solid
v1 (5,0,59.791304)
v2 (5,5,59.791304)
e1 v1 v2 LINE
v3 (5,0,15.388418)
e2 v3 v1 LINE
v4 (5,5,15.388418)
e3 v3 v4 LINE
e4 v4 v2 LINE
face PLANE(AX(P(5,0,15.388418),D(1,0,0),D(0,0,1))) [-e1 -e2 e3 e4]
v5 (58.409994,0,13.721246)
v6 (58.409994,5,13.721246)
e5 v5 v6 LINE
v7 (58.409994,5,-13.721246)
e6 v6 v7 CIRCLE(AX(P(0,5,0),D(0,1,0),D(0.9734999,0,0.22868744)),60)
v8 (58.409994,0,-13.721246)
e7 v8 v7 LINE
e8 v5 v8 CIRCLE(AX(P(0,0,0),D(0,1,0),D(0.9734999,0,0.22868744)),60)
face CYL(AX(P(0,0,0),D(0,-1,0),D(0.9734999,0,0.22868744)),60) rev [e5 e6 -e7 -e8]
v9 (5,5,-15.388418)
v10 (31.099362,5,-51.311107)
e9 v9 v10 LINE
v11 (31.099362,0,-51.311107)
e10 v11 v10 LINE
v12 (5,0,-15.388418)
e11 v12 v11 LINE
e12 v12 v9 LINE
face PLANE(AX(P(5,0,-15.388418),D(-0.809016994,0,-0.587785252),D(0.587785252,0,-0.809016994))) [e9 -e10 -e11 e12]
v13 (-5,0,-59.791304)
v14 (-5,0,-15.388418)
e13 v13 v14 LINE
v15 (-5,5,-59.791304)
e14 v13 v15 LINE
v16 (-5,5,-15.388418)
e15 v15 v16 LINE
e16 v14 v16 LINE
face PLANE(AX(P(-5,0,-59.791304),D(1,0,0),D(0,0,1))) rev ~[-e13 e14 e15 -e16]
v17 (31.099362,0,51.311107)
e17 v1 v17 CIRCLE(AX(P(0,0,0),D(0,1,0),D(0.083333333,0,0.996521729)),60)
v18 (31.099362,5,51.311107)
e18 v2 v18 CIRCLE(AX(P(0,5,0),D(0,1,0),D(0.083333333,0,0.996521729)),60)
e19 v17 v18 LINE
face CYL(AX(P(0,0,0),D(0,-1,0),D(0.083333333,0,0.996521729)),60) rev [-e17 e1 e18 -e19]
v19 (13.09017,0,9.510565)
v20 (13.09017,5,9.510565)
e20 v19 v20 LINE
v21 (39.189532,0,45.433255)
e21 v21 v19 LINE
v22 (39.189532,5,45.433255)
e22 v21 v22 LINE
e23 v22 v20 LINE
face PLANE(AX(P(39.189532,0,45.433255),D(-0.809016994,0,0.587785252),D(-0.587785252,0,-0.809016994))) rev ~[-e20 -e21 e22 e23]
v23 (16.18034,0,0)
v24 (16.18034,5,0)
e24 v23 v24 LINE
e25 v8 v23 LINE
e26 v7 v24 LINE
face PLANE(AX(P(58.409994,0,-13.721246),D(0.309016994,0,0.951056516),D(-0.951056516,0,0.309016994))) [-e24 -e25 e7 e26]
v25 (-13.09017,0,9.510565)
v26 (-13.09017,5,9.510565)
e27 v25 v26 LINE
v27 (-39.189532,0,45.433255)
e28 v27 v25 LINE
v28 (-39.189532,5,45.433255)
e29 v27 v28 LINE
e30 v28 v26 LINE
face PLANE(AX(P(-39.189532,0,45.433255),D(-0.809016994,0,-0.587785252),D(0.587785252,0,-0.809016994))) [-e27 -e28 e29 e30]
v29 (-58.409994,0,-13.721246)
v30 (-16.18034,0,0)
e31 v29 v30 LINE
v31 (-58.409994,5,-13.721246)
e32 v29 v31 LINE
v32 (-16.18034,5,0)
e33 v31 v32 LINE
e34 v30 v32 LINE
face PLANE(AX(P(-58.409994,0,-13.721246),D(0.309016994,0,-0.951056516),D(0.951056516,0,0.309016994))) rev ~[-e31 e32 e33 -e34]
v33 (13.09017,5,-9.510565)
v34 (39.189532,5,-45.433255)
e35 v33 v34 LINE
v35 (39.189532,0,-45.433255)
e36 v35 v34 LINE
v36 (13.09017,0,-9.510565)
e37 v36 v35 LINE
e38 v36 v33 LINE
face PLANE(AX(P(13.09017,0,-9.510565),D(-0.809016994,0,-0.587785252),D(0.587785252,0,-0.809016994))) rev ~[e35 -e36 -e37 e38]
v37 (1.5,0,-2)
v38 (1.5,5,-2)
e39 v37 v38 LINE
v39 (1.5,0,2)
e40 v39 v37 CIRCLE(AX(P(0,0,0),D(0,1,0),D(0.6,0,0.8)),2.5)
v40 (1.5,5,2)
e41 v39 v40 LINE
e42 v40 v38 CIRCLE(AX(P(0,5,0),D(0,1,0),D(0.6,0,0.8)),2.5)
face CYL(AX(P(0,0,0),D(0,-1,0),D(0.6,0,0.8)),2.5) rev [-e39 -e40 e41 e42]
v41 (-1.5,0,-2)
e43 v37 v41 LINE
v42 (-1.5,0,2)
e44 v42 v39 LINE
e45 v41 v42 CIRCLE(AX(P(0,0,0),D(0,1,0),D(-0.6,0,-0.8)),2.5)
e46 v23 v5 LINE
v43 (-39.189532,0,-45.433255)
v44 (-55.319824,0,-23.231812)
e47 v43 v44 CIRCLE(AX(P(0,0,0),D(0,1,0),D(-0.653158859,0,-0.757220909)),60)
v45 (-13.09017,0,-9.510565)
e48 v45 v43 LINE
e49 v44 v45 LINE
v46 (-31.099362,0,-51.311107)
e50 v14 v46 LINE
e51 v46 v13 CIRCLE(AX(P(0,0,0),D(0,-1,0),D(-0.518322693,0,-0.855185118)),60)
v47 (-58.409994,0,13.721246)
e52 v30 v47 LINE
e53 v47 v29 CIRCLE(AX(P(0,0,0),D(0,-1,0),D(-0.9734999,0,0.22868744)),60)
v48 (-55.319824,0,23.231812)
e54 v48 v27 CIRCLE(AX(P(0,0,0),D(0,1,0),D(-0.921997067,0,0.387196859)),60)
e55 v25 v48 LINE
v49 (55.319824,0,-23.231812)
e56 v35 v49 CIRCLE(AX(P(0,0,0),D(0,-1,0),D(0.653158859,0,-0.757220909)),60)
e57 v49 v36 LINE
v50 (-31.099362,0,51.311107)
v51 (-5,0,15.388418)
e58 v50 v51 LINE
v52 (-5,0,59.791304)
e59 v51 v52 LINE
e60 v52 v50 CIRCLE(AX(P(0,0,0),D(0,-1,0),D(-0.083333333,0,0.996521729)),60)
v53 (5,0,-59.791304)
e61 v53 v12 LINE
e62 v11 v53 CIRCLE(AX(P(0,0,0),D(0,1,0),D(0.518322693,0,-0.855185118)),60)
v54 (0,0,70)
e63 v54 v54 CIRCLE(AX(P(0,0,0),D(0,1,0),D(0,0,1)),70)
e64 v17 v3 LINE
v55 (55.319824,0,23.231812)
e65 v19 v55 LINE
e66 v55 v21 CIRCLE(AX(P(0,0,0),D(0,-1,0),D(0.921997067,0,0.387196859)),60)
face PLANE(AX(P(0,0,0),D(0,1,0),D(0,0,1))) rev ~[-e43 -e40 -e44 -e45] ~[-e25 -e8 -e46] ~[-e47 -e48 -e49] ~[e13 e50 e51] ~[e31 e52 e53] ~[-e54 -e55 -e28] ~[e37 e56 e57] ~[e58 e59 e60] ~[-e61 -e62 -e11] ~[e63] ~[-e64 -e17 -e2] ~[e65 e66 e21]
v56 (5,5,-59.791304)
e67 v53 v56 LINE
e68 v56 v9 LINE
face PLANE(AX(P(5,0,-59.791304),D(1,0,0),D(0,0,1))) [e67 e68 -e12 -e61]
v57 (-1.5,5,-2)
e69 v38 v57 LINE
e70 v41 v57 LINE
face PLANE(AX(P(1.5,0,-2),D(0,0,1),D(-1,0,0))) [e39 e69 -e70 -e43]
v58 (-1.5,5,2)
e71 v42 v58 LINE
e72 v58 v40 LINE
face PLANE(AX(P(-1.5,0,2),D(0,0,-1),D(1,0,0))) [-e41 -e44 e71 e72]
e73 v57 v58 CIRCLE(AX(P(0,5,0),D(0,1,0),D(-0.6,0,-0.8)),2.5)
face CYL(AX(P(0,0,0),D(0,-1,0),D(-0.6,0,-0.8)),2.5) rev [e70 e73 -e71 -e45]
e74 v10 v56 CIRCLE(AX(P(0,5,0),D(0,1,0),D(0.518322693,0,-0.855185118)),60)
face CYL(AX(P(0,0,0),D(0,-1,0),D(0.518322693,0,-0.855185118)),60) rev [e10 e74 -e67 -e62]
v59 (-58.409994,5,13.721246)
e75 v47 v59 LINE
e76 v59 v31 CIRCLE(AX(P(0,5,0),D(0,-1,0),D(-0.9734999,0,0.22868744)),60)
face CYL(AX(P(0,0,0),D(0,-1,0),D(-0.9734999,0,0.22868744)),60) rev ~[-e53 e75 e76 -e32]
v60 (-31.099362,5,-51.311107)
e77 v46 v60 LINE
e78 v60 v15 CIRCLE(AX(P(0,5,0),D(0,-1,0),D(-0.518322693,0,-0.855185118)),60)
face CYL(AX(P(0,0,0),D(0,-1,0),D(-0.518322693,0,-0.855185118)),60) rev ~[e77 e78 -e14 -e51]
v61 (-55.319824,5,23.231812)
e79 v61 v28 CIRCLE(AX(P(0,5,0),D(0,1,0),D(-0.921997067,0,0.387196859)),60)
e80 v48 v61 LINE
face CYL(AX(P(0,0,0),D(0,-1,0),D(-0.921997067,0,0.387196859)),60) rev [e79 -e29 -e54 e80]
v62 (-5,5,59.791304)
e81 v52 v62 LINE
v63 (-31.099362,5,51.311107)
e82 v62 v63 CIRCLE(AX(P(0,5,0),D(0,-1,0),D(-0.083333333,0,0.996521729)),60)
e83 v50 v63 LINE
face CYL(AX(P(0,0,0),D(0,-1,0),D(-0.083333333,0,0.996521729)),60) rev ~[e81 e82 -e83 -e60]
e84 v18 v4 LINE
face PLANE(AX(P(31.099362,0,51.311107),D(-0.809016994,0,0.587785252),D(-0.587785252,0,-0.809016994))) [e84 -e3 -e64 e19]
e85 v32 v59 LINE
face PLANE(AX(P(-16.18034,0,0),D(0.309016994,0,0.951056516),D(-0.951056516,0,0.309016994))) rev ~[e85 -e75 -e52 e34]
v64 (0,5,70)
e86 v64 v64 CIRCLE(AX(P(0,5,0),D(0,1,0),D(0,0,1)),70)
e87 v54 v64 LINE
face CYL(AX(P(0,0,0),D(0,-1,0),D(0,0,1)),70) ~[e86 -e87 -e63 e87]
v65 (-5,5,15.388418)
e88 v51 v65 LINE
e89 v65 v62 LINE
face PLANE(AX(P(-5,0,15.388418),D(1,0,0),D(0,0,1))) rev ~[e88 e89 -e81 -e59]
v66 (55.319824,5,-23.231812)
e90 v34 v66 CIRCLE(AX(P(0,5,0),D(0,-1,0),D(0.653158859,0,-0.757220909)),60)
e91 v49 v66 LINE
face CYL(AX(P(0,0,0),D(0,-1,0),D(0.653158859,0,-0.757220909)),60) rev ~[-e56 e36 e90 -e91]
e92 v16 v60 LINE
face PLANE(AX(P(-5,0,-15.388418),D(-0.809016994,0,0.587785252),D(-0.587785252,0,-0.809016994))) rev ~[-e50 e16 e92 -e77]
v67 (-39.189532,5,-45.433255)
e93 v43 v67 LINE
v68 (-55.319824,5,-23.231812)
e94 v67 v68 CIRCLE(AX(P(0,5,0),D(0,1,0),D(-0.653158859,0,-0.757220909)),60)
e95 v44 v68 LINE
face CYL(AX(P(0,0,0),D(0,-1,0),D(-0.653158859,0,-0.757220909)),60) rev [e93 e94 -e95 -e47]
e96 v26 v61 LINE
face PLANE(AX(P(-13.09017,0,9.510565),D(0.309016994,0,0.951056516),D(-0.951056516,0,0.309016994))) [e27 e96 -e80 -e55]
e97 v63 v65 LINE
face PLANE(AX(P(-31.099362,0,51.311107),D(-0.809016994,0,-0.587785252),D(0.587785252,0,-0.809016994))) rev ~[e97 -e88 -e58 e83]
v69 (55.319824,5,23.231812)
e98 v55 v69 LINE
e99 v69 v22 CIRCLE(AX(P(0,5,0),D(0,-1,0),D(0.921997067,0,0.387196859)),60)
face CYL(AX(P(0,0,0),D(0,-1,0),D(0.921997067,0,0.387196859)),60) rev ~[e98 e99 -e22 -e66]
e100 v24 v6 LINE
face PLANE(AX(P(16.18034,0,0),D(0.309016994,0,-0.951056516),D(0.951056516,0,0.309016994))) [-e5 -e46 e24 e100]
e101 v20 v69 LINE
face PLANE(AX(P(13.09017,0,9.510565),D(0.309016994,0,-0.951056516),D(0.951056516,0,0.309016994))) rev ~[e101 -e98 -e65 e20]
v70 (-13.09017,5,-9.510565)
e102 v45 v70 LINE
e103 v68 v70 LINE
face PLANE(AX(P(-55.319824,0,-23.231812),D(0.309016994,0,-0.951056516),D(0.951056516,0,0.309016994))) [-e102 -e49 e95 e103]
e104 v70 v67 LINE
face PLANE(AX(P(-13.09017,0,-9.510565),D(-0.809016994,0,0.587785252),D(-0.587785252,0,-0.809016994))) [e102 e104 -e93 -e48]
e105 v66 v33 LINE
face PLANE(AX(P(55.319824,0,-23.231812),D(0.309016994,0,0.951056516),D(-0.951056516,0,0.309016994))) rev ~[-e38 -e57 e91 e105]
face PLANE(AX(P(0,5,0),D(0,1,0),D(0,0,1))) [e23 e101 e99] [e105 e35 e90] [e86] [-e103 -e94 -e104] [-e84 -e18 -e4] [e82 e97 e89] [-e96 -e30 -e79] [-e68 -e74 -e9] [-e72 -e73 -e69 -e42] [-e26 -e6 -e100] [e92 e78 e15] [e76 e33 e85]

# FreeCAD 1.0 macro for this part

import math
import FreeCAD as App
import Part
import Sketcher
from FreeCAD import Vector
Q = App.Units.Quantity

doc = App.newDocument("Part")
body = doc.addObject("PartDesign::Body", "Body")

# Sketch on XZ plane
sketch1 = doc.addObject("Sketcher::SketchObject", "Sketch")
body.addObject(sketch1)
sketch1.AttachmentSupport = (doc.XZ_Plane, [""])
sketch1.MapMode = "FlatFace"
sketch1.addGeometry([
    Part.Circle(Vector(0, 0, 0), Vector(0, 0, 1), 70),  # 0
    Part.LineSegment(Vector(-13.09017, -9.510565, 0), Vector(-55.319824, -23.231812, 0)),  # 1
    Part.ArcOfCircle(Part.Circle(Vector(0, 0, 0), Vector(0, 0, 1), 60), math.radians(-157.219808), math.radians(-130.780192)),  # 2
    Part.LineSegment(Vector(-39.189532, -45.433255, 0), Vector(-13.09017, -9.510565, 0)),  # 3
    Part.ArcOfCircle(Part.Circle(Vector(0, 0, 0), Vector(0, 0, 1), 60), math.radians(166.780192), math.radians(193.219808)),  # 4
    Part.LineSegment(Vector(-58.409994, -13.721246, 0), Vector(-16.18034, 0, 0)),  # 5
    Part.LineSegment(Vector(-16.18034, 0, 0), Vector(-58.409994, 13.721246, 0)),  # 6
    Part.LineSegment(Vector(-5, -59.791304, 0), Vector(-5, -15.388418, 0)),  # 7
    Part.LineSegment(Vector(-5, -15.388418, 0), Vector(-31.099362, -51.311107, 0)),  # 8
    Part.ArcOfCircle(Part.Circle(Vector(0, 0, 0), Vector(0, 0, 1), 60), math.radians(-121.219808), math.radians(-94.780192)),  # 9
    Part.LineSegment(Vector(-13.09017, 9.510565, 0), Vector(-39.189532, 45.433255, 0)),  # 10
    Part.ArcOfCircle(Part.Circle(Vector(0, 0, 0), Vector(0, 0, 1), 60), math.radians(130.780192), math.radians(157.219808)),  # 11
    Part.LineSegment(Vector(-55.319824, 23.231812, 0), Vector(-13.09017, 9.510565, 0)),  # 12
    Part.ArcOfCircle(Part.Circle(Vector(0, 0, 0), Vector(0, 0, 1), 60), math.radians(94.780192), math.radians(121.219808)),  # 13
    Part.LineSegment(Vector(-31.099362, 51.311107, 0), Vector(-5, 15.388418, 0)),  # 14
    Part.LineSegment(Vector(-5, 15.388418, 0), Vector(-5, 59.791304, 0)),  # 15
    Part.LineSegment(Vector(31.099362, -51.311107, 0), Vector(5, -15.388418, 0)),  # 16
    Part.LineSegment(Vector(5, -15.388418, 0), Vector(5, -59.791304, 0)),  # 17
    Part.ArcOfCircle(Part.Circle(Vector(0, 0, 0), Vector(0, 0, 1), 60), math.radians(-85.219808), math.radians(-58.780192)),  # 18
    Part.ArcOfCircle(Part.Circle(Vector(0, 0, 0), Vector(0, 0, 1), 60), math.radians(-49.219808), math.radians(-22.780192)),  # 19
    Part.LineSegment(Vector(55.319824, -23.231812, 0), Vector(13.09017, -9.510565, 0)),  # 20
    Part.LineSegment(Vector(13.09017, -9.510565, 0), Vector(39.189532, -45.433255, 0)),  # 21
    Part.LineSegment(Vector(16.18034, 0, 0), Vector(58.409994, -13.721246, 0)),  # 22
    Part.ArcOfCircle(Part.Circle(Vector(0, 0, 0), Vector(0, 0, 1), 60), math.radians(-13.219808), math.radians(13.219808)),  # 23
    Part.LineSegment(Vector(58.409994, 13.721246, 0), Vector(16.18034, 0, 0)),  # 24
    Part.LineSegment(Vector(1.5, 2, 0), Vector(-1.5, 2, 0)),  # 25
    Part.ArcOfCircle(Part.Circle(Vector(0, 0, 0), Vector(0, 0, 1), 2.5), math.radians(126.869898), math.radians(233.130102)),  # 26
    Part.LineSegment(Vector(-1.5, -2, 0), Vector(1.5, -2, 0)),  # 27
    Part.ArcOfCircle(Part.Circle(Vector(0, 0, 0), Vector(0, 0, 1), 2.5), math.radians(-53.130102), math.radians(53.130102)),  # 28
    Part.LineSegment(Vector(5, 15.388418, 0), Vector(31.099362, 51.311107, 0)),  # 29
    Part.ArcOfCircle(Part.Circle(Vector(0, 0, 0), Vector(0, 0, 1), 60), math.radians(58.780192), math.radians(85.219808)),  # 30
    Part.LineSegment(Vector(5, 59.791304, 0), Vector(5, 15.388418, 0)),  # 31
    Part.ArcOfCircle(Part.Circle(Vector(0, 0, 0), Vector(0, 0, 1), 60), math.radians(22.780192), math.radians(49.219808)),  # 32
    Part.LineSegment(Vector(39.189532, 45.433255, 0), Vector(13.09017, 9.510565, 0)),  # 33
    Part.LineSegment(Vector(13.09017, 9.510565, 0), Vector(55.319824, 23.231812, 0)),  # 34
], False)
sketch1.addConstraint([
    Sketcher.Constraint("Coincident", 1, 2, 2, 1),
    Sketcher.Constraint("Coincident", 2, 2, 3, 1),
    Sketcher.Constraint("Coincident", 3, 2, 1, 1),
    Sketcher.Constraint("Coincident", 4, 2, 5, 1),
    Sketcher.Constraint("Coincident", 5, 2, 6, 1),
    Sketcher.Constraint("Coincident", 6, 2, 4, 1),
    Sketcher.Constraint("Coincident", 7, 2, 8, 1),
    Sketcher.Constraint("Coincident", 8, 2, 9, 1),
    Sketcher.Constraint("Coincident", 9, 2, 7, 1),
    Sketcher.Constraint("Coincident", 10, 2, 11, 1),
    Sketcher.Constraint("Coincident", 11, 2, 12, 1),
    Sketcher.Constraint("Coincident", 12, 2, 10, 1),
    Sketcher.Constraint("Coincident", 13, 2, 14, 1),
    Sketcher.Constraint("Coincident", 14, 2, 15, 1),
    Sketcher.Constraint("Coincident", 15, 2, 13, 1),
    Sketcher.Constraint("Coincident", 16, 2, 17, 1),
    Sketcher.Constraint("Coincident", 17, 2, 18, 1),
    Sketcher.Constraint("Coincident", 18, 2, 16, 1),
    Sketcher.Constraint("Coincident", 19, 2, 20, 1),
    Sketcher.Constraint("Coincident", 20, 2, 21, 1),
    Sketcher.Constraint("Coincident", 21, 2, 19, 1),
    Sketcher.Constraint("Coincident", 22, 2, 23, 1),
    Sketcher.Constraint("Coincident", 23, 2, 24, 1),
    Sketcher.Constraint("Coincident", 24, 2, 22, 1),
    Sketcher.Constraint("Coincident", 25, 2, 26, 1),
    Sketcher.Constraint("Coincident", 26, 2, 27, 1),
    Sketcher.Constraint("Coincident", 27, 2, 28, 1),
    Sketcher.Constraint("Coincident", 28, 2, 25, 1),
    Sketcher.Constraint("Coincident", 29, 2, 30, 1),
    Sketcher.Constraint("Coincident", 30, 2, 31, 1),
    Sketcher.Constraint("Coincident", 31, 2, 29, 1),
    Sketcher.Constraint("Coincident", 32, 2, 33, 1),
    Sketcher.Constraint("Coincident", 33, 2, 34, 1),
    Sketcher.Constraint("Coincident", 34, 2, 32, 1),
    Sketcher.Constraint("Vertical", 7),
    Sketcher.Constraint("Vertical", 15),
    Sketcher.Constraint("Vertical", 17),
    Sketcher.Constraint("Horizontal", 25),
    Sketcher.Constraint("Horizontal", 27),
    Sketcher.Constraint("Vertical", 31),
    Sketcher.Constraint("Coincident", 0, 3, -1, 1),
    Sketcher.Constraint("Coincident", 2, 3, -1, 1),
    Sketcher.Constraint("Coincident", 4, 3, -1, 1),
    Sketcher.Constraint("Coincident", 9, 3, -1, 1),
    Sketcher.Constraint("Coincident", 11, 3, -1, 1),
    Sketcher.Constraint("Coincident", 13, 3, -1, 1),
    Sketcher.Constraint("Coincident", 18, 3, -1, 1),
    Sketcher.Constraint("Coincident", 19, 3, -1, 1),
    Sketcher.Constraint("Coincident", 23, 3, -1, 1),
    Sketcher.Constraint("Coincident", 26, 3, -1, 1),
    Sketcher.Constraint("Coincident", 28, 3, -1, 1),
    Sketcher.Constraint("Coincident", 30, 3, -1, 1),
    Sketcher.Constraint("Coincident", 32, 3, -1, 1),
    Sketcher.Constraint("Equal", 2, 4),
    Sketcher.Constraint("Equal", 4, 9),
    Sketcher.Constraint("Equal", 9, 11),
    Sketcher.Constraint("Equal", 11, 13),
    Sketcher.Constraint("Equal", 13, 18),
    Sketcher.Constraint("Equal", 18, 19),
    Sketcher.Constraint("Equal", 19, 23),
    Sketcher.Constraint("Equal", 26, 28),
    Sketcher.Constraint("Equal", 23, 30),
    Sketcher.Constraint("Equal", 30, 32),
    Sketcher.Constraint("Symmetric", 14, 2, 16, 2, -1, 1),
    Sketcher.Constraint("Symmetric", 12, 2, 20, 2, -1, 1),
    Sketcher.Constraint("Symmetric", 5, 2, 24, 2, -1, 1),
    Sketcher.Constraint("Symmetric", 7, 2, 31, 2, -1, 1),
    Sketcher.Constraint("Symmetric", 3, 2, 33, 2, -1, 1),
    Sketcher.Constraint("Symmetric", 7, 2, 16, 2, -2),
    Sketcher.Constraint("Symmetric", 3, 2, 20, 2, -2),
    Sketcher.Constraint("PointOnObject", 5, 2, -1),
    Sketcher.Constraint("Parallel", 1, 5),
    Sketcher.Constraint("Parallel", 3, 8),
    Sketcher.Constraint("Parallel", 6, 12),
    Sketcher.Constraint("Parallel", 10, 14),
    Sketcher.Constraint("Parallel", 14, 16),
    Sketcher.Constraint("Parallel", 12, 20),
    Sketcher.Constraint("Parallel", 16, 21),
    Sketcher.Constraint("Parallel", 20, 22),
    Sketcher.Constraint("Parallel", 5, 24),
    Sketcher.Constraint("Parallel", 8, 29),
    Sketcher.Constraint("Parallel", 29, 33),
    Sketcher.Constraint("Parallel", 24, 34),
    Sketcher.Constraint("Horizontal", 8, 2, 18, 2),
    Sketcher.Constraint("Horizontal", 1, 2, 19, 2),
    Sketcher.Constraint("Vertical", 25, 2, 26, 2),
    Sketcher.Constraint("Equal", 1, 3),
    Sketcher.Constraint("Equal", 3, 5),
    Sketcher.Constraint("Equal", 6, 8),
    Sketcher.Constraint("Diameter", 0, Q("140 mm")),
    Sketcher.Constraint("Radius", 2, Q("60 mm")),
    Sketcher.Constraint("Radius", 26, Q("2.5 mm")),
    Sketcher.Constraint("DistanceX", 25, 2, 25, 1, Q("3 mm")),
    Sketcher.Constraint("Angle", 1, Q("-162 deg")),
    Sketcher.Constraint("Angle", 3, Q("54 deg")),
    Sketcher.Constraint("DistanceX", 7, 2, -1, 1, Q("5 mm")),
    Sketcher.Constraint("DistanceY", 7, 1, 7, 2, Q("44.402886 mm")),
])
pad1 = doc.addObject("PartDesign::Pad", "Pad")
body.addObject(pad1)
pad1.Profile = sketch1
pad1.Length = 5
pad1.Reversed = True

doc.recompute()
